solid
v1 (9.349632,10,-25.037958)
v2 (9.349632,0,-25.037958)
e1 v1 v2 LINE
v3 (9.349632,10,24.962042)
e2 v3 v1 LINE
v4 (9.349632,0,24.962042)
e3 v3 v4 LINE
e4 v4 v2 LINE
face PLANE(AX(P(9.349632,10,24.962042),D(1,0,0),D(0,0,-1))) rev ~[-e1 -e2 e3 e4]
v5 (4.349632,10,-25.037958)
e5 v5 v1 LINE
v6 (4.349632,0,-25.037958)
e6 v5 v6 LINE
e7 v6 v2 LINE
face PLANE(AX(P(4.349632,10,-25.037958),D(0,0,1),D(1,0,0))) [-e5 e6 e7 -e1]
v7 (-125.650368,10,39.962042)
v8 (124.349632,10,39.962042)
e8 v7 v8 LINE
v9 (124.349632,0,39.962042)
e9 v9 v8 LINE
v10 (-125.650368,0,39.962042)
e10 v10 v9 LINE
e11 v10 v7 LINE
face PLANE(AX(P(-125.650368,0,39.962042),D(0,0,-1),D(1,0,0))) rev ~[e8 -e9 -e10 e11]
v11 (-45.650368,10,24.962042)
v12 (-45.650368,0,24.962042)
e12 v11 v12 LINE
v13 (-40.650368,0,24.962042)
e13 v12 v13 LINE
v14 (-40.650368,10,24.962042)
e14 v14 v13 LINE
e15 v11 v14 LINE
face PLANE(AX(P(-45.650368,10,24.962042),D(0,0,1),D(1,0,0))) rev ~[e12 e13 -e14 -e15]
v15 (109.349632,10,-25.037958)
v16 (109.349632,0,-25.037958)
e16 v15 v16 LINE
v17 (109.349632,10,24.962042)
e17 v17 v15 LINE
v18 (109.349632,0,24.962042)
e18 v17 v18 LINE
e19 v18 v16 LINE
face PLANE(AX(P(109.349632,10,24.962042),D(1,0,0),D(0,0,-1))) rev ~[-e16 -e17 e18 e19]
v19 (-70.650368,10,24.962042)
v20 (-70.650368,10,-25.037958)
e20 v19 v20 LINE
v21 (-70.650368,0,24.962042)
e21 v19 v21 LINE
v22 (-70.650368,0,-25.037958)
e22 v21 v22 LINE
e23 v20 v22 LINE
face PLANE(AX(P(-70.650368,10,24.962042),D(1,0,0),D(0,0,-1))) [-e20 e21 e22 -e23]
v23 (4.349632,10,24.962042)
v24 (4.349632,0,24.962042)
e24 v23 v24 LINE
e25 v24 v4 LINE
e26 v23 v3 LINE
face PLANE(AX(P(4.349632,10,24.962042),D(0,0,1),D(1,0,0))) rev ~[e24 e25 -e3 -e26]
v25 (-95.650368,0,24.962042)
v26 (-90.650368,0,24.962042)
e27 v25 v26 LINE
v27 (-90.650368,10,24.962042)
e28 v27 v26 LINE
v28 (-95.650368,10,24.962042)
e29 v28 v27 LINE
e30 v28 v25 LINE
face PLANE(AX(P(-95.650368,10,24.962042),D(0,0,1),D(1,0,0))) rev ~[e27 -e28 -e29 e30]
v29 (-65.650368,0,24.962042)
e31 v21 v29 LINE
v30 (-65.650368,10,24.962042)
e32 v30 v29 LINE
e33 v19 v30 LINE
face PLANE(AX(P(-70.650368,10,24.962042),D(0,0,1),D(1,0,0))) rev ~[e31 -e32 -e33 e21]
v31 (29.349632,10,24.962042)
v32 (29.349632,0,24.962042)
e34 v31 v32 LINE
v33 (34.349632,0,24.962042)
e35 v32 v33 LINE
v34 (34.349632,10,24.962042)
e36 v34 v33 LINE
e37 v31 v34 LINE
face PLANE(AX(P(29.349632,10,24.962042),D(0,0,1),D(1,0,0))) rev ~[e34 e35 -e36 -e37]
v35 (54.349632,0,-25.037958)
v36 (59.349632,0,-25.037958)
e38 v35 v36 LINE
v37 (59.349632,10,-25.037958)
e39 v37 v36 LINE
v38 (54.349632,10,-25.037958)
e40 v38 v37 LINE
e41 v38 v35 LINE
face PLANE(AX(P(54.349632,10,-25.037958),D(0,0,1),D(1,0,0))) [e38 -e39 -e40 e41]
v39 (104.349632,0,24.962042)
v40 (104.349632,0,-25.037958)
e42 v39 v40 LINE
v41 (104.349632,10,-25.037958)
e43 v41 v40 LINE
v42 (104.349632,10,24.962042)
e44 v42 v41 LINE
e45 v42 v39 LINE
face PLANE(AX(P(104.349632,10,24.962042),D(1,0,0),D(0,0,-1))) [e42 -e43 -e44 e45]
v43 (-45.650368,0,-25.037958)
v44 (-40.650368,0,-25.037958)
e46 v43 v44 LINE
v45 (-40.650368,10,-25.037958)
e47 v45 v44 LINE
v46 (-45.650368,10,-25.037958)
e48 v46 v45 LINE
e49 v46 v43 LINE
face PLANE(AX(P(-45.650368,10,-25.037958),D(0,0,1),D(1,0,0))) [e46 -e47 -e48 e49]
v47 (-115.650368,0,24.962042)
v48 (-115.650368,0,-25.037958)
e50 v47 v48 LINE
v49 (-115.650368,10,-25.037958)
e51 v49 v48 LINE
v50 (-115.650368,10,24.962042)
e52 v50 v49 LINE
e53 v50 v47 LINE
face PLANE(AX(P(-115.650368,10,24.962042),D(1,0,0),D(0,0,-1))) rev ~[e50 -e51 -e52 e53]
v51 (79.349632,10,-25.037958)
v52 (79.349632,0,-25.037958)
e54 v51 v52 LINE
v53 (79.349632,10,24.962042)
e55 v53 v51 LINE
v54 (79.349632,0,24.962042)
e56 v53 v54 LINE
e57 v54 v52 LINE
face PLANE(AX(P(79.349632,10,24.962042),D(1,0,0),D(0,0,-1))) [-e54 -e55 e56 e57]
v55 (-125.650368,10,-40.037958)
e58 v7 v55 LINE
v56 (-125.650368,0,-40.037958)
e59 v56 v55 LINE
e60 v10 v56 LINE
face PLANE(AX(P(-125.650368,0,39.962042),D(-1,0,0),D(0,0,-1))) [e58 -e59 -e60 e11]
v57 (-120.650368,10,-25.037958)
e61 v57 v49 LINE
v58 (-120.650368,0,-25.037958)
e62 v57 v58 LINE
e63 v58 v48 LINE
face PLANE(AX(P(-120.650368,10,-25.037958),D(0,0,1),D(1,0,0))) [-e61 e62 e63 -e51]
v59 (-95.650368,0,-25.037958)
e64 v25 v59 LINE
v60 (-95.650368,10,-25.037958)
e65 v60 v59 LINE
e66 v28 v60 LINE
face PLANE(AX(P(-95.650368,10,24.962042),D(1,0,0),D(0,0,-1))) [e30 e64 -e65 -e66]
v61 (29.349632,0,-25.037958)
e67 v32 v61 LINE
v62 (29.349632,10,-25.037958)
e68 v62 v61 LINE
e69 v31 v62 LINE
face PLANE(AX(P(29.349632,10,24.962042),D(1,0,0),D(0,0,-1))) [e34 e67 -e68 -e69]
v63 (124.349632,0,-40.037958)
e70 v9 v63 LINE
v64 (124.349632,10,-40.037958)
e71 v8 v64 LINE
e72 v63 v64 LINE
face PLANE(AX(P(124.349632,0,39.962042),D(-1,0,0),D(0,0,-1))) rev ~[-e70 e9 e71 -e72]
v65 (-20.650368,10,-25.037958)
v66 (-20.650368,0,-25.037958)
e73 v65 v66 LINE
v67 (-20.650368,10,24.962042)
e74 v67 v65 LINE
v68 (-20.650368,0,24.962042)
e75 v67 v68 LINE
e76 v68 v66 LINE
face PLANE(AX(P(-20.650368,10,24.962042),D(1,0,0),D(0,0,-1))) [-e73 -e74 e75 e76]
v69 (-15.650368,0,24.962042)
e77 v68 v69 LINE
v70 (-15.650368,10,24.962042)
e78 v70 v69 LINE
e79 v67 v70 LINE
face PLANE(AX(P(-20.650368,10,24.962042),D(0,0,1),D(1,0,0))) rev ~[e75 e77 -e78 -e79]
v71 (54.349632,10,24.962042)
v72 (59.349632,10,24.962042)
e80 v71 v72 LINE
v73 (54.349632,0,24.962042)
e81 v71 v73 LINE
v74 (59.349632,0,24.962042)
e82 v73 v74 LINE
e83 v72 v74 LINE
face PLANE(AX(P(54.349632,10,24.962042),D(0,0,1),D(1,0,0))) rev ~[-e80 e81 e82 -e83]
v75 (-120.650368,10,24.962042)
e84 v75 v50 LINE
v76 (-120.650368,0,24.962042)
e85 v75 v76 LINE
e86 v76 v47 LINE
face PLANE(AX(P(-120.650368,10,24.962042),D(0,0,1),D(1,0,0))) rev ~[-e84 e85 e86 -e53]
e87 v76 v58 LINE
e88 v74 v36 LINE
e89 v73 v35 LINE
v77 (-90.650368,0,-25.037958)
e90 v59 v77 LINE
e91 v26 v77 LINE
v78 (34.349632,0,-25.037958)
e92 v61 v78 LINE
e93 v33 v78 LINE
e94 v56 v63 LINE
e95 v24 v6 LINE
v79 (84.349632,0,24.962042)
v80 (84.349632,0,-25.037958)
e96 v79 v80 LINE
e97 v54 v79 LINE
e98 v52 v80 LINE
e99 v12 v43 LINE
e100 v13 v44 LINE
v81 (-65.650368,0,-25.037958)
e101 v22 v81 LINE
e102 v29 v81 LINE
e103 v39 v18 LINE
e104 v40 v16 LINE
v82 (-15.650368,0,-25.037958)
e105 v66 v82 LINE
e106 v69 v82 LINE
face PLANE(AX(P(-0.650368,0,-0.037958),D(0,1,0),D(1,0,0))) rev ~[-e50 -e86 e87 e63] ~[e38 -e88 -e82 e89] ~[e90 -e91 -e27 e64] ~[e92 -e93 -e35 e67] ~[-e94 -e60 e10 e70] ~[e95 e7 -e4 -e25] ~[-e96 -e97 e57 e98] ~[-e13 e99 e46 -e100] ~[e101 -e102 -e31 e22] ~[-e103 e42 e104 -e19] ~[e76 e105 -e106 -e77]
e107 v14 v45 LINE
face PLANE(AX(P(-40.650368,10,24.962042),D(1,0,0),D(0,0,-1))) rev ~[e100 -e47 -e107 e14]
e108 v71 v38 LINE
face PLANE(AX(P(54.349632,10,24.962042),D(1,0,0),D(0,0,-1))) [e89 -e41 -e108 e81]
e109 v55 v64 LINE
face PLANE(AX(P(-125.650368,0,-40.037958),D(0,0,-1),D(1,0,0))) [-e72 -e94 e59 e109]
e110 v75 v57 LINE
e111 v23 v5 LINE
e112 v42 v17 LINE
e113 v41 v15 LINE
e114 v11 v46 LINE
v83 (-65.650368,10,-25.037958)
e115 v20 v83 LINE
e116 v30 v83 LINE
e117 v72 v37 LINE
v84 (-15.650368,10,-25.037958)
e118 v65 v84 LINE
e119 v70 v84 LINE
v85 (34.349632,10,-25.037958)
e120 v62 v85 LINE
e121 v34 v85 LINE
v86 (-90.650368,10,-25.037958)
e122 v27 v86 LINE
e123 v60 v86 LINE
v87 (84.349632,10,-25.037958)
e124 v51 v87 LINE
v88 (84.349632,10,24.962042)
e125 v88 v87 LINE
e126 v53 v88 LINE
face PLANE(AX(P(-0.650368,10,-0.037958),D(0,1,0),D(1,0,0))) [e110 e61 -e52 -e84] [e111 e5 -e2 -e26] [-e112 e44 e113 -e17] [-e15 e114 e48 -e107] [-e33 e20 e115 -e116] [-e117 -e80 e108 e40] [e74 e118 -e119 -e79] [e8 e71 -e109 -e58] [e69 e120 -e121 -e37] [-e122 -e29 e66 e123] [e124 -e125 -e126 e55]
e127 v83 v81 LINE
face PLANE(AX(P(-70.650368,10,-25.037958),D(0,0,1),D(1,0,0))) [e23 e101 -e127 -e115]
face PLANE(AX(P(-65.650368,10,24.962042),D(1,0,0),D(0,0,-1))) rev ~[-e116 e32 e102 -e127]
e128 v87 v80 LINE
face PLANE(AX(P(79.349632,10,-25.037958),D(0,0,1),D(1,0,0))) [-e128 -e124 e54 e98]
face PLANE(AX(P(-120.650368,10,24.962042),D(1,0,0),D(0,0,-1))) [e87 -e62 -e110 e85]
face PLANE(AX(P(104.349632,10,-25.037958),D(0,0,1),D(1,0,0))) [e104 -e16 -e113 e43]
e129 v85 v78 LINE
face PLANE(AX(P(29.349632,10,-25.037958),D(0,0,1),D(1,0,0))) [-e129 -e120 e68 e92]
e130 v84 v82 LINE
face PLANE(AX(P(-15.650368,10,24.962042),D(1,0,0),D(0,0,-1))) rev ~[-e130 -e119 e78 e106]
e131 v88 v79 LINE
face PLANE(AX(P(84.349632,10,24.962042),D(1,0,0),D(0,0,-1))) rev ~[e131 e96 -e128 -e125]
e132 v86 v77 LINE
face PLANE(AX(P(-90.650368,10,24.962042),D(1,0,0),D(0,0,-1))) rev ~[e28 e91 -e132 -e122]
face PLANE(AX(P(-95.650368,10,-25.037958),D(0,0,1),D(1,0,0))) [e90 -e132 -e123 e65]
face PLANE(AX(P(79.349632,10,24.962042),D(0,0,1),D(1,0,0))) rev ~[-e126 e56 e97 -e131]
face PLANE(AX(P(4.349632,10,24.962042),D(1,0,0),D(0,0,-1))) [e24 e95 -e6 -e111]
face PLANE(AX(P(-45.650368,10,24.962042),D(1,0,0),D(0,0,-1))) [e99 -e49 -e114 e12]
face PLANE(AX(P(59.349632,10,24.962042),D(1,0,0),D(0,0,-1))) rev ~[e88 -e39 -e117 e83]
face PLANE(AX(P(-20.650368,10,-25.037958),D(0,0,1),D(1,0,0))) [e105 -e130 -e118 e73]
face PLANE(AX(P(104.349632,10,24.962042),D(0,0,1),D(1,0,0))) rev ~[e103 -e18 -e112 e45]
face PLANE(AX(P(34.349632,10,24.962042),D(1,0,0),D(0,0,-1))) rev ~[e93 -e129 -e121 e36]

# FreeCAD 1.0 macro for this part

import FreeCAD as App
import Part
import Sketcher


def add_polygon(sketch, points):
    """Adds a closed chain of lines whose ends are joined by coincident constraints."""
    first, n = sketch.GeometryCount, len(points)
    for a, b in zip(points, points[1:] + points[:1]):
        sketch.addGeometry(Part.LineSegment(App.Vector(*a, 0), App.Vector(*b, 0)), False)
    for i in range(n):
        sketch.addConstraint(Sketcher.Constraint("Coincident", first + i, 2, first + (i + 1) % n, 1))

doc = App.newDocument("Part")
body = doc.addObject("PartDesign::Body", "Body")

sketch1 = doc.addObject("Sketcher::SketchObject", "Sketch")
body.addObject(sketch1)
sketch1.AttachmentSupport = (doc.XZ_Plane, [""])
sketch1.MapMode = "FlatFace"
add_polygon(sketch1, [(-125.650368, -40.037958), (-125.650368, 39.962042), (124.349632, 39.962042), (124.349632, -40.037958)])
sketch1.addConstraint([
    Sketcher.Constraint("Vertical", 0),
    Sketcher.Constraint("Horizontal", 1),
    Sketcher.Constraint("Vertical", 2),
    Sketcher.Constraint("Horizontal", 3),
    Sketcher.Constraint("DistanceX", 1, 1, 1, 2, 250.0),
    Sketcher.Constraint("DistanceY", 0, 1, 0, 2, 80.0),
    Sketcher.Constraint("DistanceY", -1, 1, 0, 2, 39.962042),
    Sketcher.Constraint("DistanceX", 0, 2, -1, 1, 125.650368),
])
pad1 = doc.addObject("PartDesign::Pad", "Pad")
body.addObject(pad1)
pad1.Profile = sketch1
pad1.Length = 10
pad1.Reversed = True

sketch2 = doc.addObject("Sketcher::SketchObject", "Sketch001")
body.addObject(sketch2)
sketch2.AttachmentSupport = (doc.XZ_Plane, [""])
sketch2.MapMode = "FlatFace"
sketch2.AttachmentOffset = App.Placement(App.Vector(0, 0, -10), App.Rotation())
add_polygon(sketch2, [(-120.650368, -25.037958), (-120.650368, 24.962042), (-115.650368, 24.962042), (-115.650368, -25.037958)])
sketch2.addConstraint([
    Sketcher.Constraint("Vertical", 0),
    Sketcher.Constraint("Horizontal", 1),
    Sketcher.Constraint("Vertical", 2),
    Sketcher.Constraint("Horizontal", 3),
    Sketcher.Constraint("DistanceX", 1, 1, 1, 2, 5.0),
    Sketcher.Constraint("DistanceY", 0, 1, 0, 2, 50.0),
    Sketcher.Constraint("DistanceY", -1, 1, 0, 2, 24.962042),
    Sketcher.Constraint("DistanceX", 0, 2, -1, 1, 120.650368),
])
pocket1 = doc.addObject("PartDesign::Pocket", "Pocket")
body.addObject(pocket1)
pocket1.Profile = sketch2
pocket1.Length = 10
pocket1.Reversed = True

sketch3 = doc.addObject("Sketcher::SketchObject", "Sketch002")
body.addObject(sketch3)
sketch3.AttachmentSupport = (doc.XZ_Plane, [""])
sketch3.MapMode = "FlatFace"
sketch3.AttachmentOffset = App.Placement(App.Vector(0, 0, -10), App.Rotation())
add_polygon(sketch3, [(-95.650368, -25.037958), (-95.650368, 24.962042), (-90.650368, 24.962042), (-90.650368, -25.037958)])
sketch3.addConstraint([
    Sketcher.Constraint("Vertical", 0),
    Sketcher.Constraint("Horizontal", 1),
    Sketcher.Constraint("Vertical", 2),
    Sketcher.Constraint("Horizontal", 3),
    Sketcher.Constraint("DistanceX", 1, 1, 1, 2, 5.0),
    Sketcher.Constraint("DistanceY", 0, 1, 0, 2, 50.0),
    Sketcher.Constraint("DistanceY", -1, 1, 0, 2, 24.962042),
    Sketcher.Constraint("DistanceX", 0, 2, -1, 1, 95.650368),
])
pocket2 = doc.addObject("PartDesign::Pocket", "Pocket001")
body.addObject(pocket2)
pocket2.Profile = sketch3
pocket2.Length = 10
pocket2.Reversed = True

sketch4 = doc.addObject("Sketcher::SketchObject", "Sketch003")
body.addObject(sketch4)
sketch4.AttachmentSupport = (doc.XZ_Plane, [""])
sketch4.MapMode = "FlatFace"
sketch4.AttachmentOffset = App.Placement(App.Vector(0, 0, -10), App.Rotation())
add_polygon(sketch4, [(-70.650368, -25.037958), (-70.650368, 24.962042), (-65.650368, 24.962042), (-65.650368, -25.037958)])
sketch4.addConstraint([
    Sketcher.Constraint("Vertical", 0),
    Sketcher.Constraint("Horizontal", 1),
    Sketcher.Constraint("Vertical", 2),
    Sketcher.Constraint("Horizontal", 3),
    Sketcher.Constraint("DistanceX", 1, 1, 1, 2, 5.0),
    Sketcher.Constraint("DistanceY", 0, 1, 0, 2, 50.0),
    Sketcher.Constraint("DistanceY", -1, 1, 0, 2, 24.962042),
    Sketcher.Constraint("DistanceX", 0, 2, -1, 1, 70.650368),
])
pocket3 = doc.addObject("PartDesign::Pocket", "Pocket002")
body.addObject(pocket3)
pocket3.Profile = sketch4
pocket3.Length = 10
pocket3.Reversed = True

sketch5 = doc.addObject("Sketcher::SketchObject", "Sketch004")
body.addObject(sketch5)
sketch5.AttachmentSupport = (doc.XZ_Plane, [""])
sketch5.MapMode = "FlatFace"
sketch5.AttachmentOffset = App.Placement(App.Vector(0, 0, -10), App.Rotation())
add_polygon(sketch5, [(-45.650368, -25.037958), (-45.650368, 24.962042), (-40.650368, 24.962042), (-40.650368, -25.037958)])
sketch5.addConstraint([
    Sketcher.Constraint("Vertical", 0),
    Sketcher.Constraint("Horizontal", 1),
    Sketcher.Constraint("Vertical", 2),
    Sketcher.Constraint("Horizontal", 3),
    Sketcher.Constraint("DistanceX", 1, 1, 1, 2, 5.0),
    Sketcher.Constraint("DistanceY", 0, 1, 0, 2, 50.0),
    Sketcher.Constraint("DistanceY", -1, 1, 0, 2, 24.962042),
    Sketcher.Constraint("DistanceX", 0, 2, -1, 1, 45.650368),
])
pocket4 = doc.addObject("PartDesign::Pocket", "Pocket003")
body.addObject(pocket4)
pocket4.Profile = sketch5
pocket4.Length = 10
pocket4.Reversed = True

sketch6 = doc.addObject("Sketcher::SketchObject", "Sketch005")
body.addObject(sketch6)
sketch6.AttachmentSupport = (doc.XZ_Plane, [""])
sketch6.MapMode = "FlatFace"
sketch6.AttachmentOffset = App.Placement(App.Vector(0, 0, -10), App.Rotation())
add_polygon(sketch6, [(-20.650368, -25.037958), (-20.650368, 24.962042), (-15.650368, 24.962042), (-15.650368, -25.037958)])
sketch6.addConstraint([
    Sketcher.Constraint("Vertical", 0),
    Sketcher.Constraint("Horizontal", 1),
    Sketcher.Constraint("Vertical", 2),
    Sketcher.Constraint("Horizontal", 3),
    Sketcher.Constraint("DistanceX", 1, 1, 1, 2, 5.0),
    Sketcher.Constraint("DistanceY", 0, 1, 0, 2, 50.0),
    Sketcher.Constraint("DistanceY", -1, 1, 0, 2, 24.962042),
    Sketcher.Constraint("DistanceX", 0, 2, -1, 1, 20.650368),
])
pocket5 = doc.addObject("PartDesign::Pocket", "Pocket004")
body.addObject(pocket5)
pocket5.Profile = sketch6
pocket5.Length = 10
pocket5.Reversed = True

sketch7 = doc.addObject("Sketcher::SketchObject", "Sketch006")
body.addObject(sketch7)
sketch7.AttachmentSupport = (doc.XZ_Plane, [""])
sketch7.MapMode = "FlatFace"
sketch7.AttachmentOffset = App.Placement(App.Vector(0, 0, -10), App.Rotation())
add_polygon(sketch7, [(4.349632, -25.037958), (4.349632, 24.962042), (9.349632, 24.962042), (9.349632, -25.037958)])
sketch7.addConstraint([
    Sketcher.Constraint("Vertical", 0),
    Sketcher.Constraint("Horizontal", 1),
    Sketcher.Constraint("Vertical", 2),
    Sketcher.Constraint("Horizontal", 3),
    Sketcher.Constraint("DistanceX", 1, 1, 1, 2, 5.0),
    Sketcher.Constraint("DistanceY", 0, 1, 0, 2, 50.0),
    Sketcher.Constraint("DistanceY", -1, 1, 0, 2, 24.962042),
    Sketcher.Constraint("DistanceX", -1, 1, 0, 2, 4.349632),
])
pocket6 = doc.addObject("PartDesign::Pocket", "Pocket005")
body.addObject(pocket6)
pocket6.Profile = sketch7
pocket6.Length = 10
pocket6.Reversed = True

sketch8 = doc.addObject("Sketcher::SketchObject", "Sketch007")
body.addObject(sketch8)
sketch8.AttachmentSupport = (doc.XZ_Plane, [""])
sketch8.MapMode = "FlatFace"
sketch8.AttachmentOffset = App.Placement(App.Vector(0, 0, -10), App.Rotation())
add_polygon(sketch8, [(29.349632, -25.037958), (29.349632, 24.962042), (34.349632, 24.962042), (34.349632, -25.037958)])
sketch8.addConstraint([
    Sketcher.Constraint("Vertical", 0),
    Sketcher.Constraint("Horizontal", 1),
    Sketcher.Constraint("Vertical", 2),
    Sketcher.Constraint("Horizontal", 3),
    Sketcher.Constraint("DistanceX", 1, 1, 1, 2, 5.0),
    Sketcher.Constraint("DistanceY", 0, 1, 0, 2, 50.0),
    Sketcher.Constraint("DistanceY", -1, 1, 0, 2, 24.962042),
    Sketcher.Constraint("DistanceX", -1, 1, 0, 2, 29.349632),
])
pocket7 = doc.addObject("PartDesign::Pocket", "Pocket006")
body.addObject(pocket7)
pocket7.Profile = sketch8
pocket7.Length = 10
pocket7.Reversed = True

sketch9 = doc.addObject("Sketcher::SketchObject", "Sketch008")
body.addObject(sketch9)
sketch9.AttachmentSupport = (doc.XZ_Plane, [""])
sketch9.MapMode = "FlatFace"
sketch9.AttachmentOffset = App.Placement(App.Vector(0, 0, -10), App.Rotation())
add_polygon(sketch9, [(54.349632, -25.037958), (54.349632, 24.962042), (59.349632, 24.962042), (59.349632, -25.037958)])
sketch9.addConstraint([
    Sketcher.Constraint("Vertical", 0),
    Sketcher.Constraint("Horizontal", 1),
    Sketcher.Constraint("Vertical", 2),
    Sketcher.Constraint("Horizontal", 3),
    Sketcher.Constraint("DistanceX", 1, 1, 1, 2, 5.0),
    Sketcher.Constraint("DistanceY", 0, 1, 0, 2, 50.0),
    Sketcher.Constraint("DistanceY", -1, 1, 0, 2, 24.962042),
    Sketcher.Constraint("DistanceX", -1, 1, 0, 2, 54.349632),
])
pocket8 = doc.addObject("PartDesign::Pocket", "Pocket007")
body.addObject(pocket8)
pocket8.Profile = sketch9
pocket8.Length = 10
pocket8.Reversed = True

sketch10 = doc.addObject("Sketcher::SketchObject", "Sketch009")
body.addObject(sketch10)
sketch10.AttachmentSupport = (doc.XZ_Plane, [""])
sketch10.MapMode = "FlatFace"
sketch10.AttachmentOffset = App.Placement(App.Vector(0, 0, -10), App.Rotation())
add_polygon(sketch10, [(79.349632, -25.037958), (79.349632, 24.962042), (84.349632, 24.962042), (84.349632, -25.037958)])
sketch10.addConstraint([
    Sketcher.Constraint("Vertical", 0),
    Sketcher.Constraint("Horizontal", 1),
    Sketcher.Constraint("Vertical", 2),
    Sketcher.Constraint("Horizontal", 3),
    Sketcher.Constraint("DistanceX", 1, 1, 1, 2, 5.0),
    Sketcher.Constraint("DistanceY", 0, 1, 0, 2, 50.0),
    Sketcher.Constraint("DistanceY", -1, 1, 0, 2, 24.962042),
    Sketcher.Constraint("DistanceX", -1, 1, 0, 2, 79.349632),
])
pocket9 = doc.addObject("PartDesign::Pocket", "Pocket008")
body.addObject(pocket9)
pocket9.Profile = sketch10
pocket9.Length = 10
pocket9.Reversed = True

sketch11 = doc.addObject("Sketcher::SketchObject", "Sketch010")
body.addObject(sketch11)
sketch11.AttachmentSupport = (doc.XZ_Plane, [""])
sketch11.MapMode = "FlatFace"
sketch11.AttachmentOffset = App.Placement(App.Vector(0, 0, -10), App.Rotation())
add_polygon(sketch11, [(104.349632, -25.037958), (104.349632, 24.962042), (109.349632, 24.962042), (109.349632, -25.037958)])
sketch11.addConstraint([
    Sketcher.Constraint("Vertical", 0),
    Sketcher.Constraint("Horizontal", 1),
    Sketcher.Constraint("Vertical", 2),
    Sketcher.Constraint("Horizontal", 3),
    Sketcher.Constraint("DistanceX", 1, 1, 1, 2, 5.0),
    Sketcher.Constraint("DistanceY", 0, 1, 0, 2, 50.0),
    Sketcher.Constraint("DistanceY", -1, 1, 0, 2, 24.962042),
    Sketcher.Constraint("DistanceX", -1, 1, 0, 2, 104.349632),
])
pocket10 = doc.addObject("PartDesign::Pocket", "Pocket009")
body.addObject(pocket10)
pocket10.Profile = sketch11
pocket10.Length = 10
pocket10.Reversed = True

doc.recompute()
